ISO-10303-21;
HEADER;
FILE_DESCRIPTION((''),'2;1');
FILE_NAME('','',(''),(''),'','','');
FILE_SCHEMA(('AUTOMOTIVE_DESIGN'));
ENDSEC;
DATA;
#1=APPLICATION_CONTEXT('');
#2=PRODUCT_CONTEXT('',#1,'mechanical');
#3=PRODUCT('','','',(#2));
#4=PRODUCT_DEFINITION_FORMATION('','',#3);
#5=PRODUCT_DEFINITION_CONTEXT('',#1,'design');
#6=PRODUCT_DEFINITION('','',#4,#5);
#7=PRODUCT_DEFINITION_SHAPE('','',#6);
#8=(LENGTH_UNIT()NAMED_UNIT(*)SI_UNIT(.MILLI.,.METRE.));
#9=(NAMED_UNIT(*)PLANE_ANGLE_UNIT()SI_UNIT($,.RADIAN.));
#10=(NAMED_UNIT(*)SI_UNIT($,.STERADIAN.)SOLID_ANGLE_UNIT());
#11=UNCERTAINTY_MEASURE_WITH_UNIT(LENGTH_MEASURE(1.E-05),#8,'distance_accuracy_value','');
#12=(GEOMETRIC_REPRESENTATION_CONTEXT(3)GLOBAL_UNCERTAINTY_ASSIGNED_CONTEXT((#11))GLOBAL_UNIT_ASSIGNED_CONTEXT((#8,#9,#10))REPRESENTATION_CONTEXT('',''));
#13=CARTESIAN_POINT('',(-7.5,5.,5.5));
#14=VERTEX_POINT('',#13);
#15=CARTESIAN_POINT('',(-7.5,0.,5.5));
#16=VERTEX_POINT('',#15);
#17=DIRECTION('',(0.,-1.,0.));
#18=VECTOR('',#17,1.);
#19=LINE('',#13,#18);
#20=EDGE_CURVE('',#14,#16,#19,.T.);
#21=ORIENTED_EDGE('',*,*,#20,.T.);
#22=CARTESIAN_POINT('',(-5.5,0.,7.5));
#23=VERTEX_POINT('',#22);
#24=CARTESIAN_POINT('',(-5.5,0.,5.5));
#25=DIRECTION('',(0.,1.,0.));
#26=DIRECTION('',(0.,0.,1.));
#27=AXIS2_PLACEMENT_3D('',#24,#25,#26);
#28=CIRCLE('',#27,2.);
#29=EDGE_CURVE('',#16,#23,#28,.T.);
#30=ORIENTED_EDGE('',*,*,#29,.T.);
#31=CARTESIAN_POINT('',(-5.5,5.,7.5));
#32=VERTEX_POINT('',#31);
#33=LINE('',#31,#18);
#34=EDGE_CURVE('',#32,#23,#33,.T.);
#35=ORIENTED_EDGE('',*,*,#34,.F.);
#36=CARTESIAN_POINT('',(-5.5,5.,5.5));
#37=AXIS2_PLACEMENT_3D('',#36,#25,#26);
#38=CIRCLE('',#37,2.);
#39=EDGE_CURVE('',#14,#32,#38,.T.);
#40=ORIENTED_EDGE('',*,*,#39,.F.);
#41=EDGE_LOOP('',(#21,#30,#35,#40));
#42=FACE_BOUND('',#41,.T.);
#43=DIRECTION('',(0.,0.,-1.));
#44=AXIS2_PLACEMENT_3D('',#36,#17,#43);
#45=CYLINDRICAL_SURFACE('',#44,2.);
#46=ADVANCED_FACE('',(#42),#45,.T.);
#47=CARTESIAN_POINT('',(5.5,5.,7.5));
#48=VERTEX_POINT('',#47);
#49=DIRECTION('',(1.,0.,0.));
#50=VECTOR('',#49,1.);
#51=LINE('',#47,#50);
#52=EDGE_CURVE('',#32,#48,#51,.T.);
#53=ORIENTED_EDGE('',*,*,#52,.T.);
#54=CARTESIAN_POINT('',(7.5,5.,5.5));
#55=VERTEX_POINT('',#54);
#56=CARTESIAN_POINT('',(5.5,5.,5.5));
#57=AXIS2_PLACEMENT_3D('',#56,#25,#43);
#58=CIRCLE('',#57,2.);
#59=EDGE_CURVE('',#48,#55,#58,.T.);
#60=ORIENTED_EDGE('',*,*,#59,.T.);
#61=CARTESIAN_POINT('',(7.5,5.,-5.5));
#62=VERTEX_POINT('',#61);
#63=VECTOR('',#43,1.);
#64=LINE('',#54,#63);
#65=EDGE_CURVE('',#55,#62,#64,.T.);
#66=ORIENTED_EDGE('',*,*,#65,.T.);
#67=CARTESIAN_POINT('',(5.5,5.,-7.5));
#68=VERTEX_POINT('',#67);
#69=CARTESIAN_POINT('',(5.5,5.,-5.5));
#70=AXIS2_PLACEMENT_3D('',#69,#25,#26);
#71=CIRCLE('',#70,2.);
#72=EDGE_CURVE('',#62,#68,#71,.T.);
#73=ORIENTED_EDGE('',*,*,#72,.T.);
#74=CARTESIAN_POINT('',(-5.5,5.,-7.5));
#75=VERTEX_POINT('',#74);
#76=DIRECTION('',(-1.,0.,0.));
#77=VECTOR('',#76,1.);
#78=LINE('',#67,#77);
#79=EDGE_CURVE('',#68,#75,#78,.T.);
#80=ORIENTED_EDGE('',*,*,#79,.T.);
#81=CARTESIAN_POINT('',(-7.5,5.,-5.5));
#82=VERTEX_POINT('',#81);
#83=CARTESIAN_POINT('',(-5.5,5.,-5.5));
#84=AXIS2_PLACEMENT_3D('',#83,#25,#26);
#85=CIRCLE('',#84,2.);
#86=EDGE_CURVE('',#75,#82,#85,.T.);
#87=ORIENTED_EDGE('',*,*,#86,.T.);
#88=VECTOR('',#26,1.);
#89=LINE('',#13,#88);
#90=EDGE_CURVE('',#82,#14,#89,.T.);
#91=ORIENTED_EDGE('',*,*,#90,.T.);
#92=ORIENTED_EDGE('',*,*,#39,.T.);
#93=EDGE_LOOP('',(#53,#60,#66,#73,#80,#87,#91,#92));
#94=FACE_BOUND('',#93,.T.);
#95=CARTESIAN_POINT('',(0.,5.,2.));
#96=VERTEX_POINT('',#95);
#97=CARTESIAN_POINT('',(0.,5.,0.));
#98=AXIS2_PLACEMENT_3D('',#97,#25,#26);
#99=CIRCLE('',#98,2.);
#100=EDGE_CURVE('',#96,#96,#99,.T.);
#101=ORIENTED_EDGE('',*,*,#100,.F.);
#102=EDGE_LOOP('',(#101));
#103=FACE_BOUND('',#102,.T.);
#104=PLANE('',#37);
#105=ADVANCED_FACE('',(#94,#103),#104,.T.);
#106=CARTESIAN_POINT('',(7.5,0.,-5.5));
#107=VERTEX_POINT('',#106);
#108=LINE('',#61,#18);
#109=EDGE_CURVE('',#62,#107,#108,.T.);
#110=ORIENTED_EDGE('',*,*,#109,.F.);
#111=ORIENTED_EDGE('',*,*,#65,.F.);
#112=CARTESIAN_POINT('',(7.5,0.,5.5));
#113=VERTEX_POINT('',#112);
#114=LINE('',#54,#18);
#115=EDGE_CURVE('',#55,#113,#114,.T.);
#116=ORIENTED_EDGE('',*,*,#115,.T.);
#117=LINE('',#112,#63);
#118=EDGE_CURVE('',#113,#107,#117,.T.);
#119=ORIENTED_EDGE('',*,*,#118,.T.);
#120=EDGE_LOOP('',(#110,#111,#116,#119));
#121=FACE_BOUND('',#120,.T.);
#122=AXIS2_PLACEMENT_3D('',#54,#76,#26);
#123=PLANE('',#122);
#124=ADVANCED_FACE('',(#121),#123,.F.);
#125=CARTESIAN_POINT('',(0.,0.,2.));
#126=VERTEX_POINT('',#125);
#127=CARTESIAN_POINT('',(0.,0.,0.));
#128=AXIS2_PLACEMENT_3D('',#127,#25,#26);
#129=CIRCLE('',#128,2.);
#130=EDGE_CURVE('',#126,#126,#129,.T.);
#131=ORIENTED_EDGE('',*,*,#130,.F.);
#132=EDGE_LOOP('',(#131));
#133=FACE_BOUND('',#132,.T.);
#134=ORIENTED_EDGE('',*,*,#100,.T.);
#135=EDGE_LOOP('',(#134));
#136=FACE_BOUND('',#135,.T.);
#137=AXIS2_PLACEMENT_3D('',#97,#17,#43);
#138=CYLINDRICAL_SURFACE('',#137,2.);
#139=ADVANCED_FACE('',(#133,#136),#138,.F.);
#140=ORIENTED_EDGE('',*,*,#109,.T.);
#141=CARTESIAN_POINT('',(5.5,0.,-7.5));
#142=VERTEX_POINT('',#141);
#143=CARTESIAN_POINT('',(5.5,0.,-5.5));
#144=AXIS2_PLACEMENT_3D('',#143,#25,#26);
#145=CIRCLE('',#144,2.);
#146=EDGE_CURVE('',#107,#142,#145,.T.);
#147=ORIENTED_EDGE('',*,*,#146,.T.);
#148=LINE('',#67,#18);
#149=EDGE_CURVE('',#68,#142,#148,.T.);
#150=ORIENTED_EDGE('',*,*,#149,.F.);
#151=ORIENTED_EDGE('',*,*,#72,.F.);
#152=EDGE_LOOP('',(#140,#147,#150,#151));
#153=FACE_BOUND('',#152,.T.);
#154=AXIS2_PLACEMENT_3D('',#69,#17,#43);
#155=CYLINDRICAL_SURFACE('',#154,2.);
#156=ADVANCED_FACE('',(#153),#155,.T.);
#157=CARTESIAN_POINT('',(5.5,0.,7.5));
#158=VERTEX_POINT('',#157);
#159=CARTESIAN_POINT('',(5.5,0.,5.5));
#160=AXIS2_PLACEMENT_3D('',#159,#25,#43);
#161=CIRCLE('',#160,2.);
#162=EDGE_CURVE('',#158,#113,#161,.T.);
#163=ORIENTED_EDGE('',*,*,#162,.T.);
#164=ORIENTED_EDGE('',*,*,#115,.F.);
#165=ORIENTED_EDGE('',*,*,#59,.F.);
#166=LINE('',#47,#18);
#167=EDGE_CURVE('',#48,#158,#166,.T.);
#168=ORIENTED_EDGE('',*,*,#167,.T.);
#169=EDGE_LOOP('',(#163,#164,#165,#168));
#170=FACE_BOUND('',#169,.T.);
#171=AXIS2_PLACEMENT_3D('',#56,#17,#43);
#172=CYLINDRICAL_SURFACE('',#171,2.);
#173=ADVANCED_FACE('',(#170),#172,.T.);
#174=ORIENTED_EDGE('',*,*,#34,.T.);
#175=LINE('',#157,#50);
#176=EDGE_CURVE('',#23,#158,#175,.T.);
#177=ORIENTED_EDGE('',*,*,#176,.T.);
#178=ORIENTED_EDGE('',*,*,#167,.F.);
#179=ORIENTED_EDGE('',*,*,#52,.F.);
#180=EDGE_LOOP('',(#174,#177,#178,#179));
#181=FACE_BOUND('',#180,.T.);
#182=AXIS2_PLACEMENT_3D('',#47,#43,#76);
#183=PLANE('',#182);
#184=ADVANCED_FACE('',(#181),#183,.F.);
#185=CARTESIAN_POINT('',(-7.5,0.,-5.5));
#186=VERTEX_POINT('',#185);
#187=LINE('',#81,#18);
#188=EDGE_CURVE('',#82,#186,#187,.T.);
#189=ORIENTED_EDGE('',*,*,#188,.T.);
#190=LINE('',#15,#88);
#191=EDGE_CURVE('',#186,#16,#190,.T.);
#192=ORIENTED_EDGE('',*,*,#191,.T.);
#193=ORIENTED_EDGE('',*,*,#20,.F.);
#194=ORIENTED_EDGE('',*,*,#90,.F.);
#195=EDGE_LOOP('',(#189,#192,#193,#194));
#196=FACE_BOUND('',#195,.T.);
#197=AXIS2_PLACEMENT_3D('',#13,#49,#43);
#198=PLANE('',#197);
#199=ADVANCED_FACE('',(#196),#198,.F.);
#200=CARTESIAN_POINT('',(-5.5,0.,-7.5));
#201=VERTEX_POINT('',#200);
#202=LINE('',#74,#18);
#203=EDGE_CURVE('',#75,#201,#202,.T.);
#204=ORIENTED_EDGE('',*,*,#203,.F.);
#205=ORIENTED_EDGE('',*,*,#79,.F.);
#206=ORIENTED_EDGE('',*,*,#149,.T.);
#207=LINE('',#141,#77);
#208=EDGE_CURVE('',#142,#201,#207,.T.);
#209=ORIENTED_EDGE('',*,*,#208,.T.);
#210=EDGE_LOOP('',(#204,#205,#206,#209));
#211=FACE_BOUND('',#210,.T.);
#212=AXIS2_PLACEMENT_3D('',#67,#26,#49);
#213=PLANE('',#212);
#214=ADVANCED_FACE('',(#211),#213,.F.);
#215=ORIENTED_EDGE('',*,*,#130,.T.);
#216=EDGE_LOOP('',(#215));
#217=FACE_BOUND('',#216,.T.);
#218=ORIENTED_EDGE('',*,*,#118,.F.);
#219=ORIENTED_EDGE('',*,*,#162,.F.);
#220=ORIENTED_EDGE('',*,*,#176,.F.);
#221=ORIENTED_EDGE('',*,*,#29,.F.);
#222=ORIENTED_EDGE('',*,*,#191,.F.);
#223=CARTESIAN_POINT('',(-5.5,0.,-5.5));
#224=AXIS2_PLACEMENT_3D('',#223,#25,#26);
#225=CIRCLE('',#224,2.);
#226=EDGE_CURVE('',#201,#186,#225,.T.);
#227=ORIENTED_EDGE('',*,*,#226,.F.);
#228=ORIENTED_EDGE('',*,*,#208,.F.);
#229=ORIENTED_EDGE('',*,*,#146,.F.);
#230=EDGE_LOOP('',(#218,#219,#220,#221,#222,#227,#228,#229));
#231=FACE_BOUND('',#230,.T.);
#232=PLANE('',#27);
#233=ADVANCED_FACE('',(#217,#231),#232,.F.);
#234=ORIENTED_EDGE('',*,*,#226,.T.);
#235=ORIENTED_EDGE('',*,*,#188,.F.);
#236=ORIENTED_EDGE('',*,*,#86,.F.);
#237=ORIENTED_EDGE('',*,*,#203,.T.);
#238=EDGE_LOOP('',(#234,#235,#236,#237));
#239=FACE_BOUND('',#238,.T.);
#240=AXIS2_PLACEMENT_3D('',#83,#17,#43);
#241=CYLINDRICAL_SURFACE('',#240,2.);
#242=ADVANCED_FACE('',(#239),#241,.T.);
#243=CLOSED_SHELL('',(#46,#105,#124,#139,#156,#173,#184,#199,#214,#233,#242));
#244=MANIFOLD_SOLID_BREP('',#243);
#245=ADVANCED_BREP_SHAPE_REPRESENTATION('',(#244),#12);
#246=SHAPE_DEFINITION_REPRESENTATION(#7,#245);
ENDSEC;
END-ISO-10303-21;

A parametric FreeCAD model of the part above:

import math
import FreeCAD as App
import Part
import Sketcher

doc = App.newDocument("Part")
body = doc.addObject("PartDesign::Body", "Body")

# Sketch on XZ plane
sketch1 = body.newObject("Sketcher::SketchObject", "Sketch")
sketch1.AttachmentSupport = (doc.getObject("XZ_Plane"), [""])
sketch1.MapMode = "FlatFace"
sketch1.addGeometry([
    Part.LineSegment(App.Vector(-5.5, 7.5, 0), App.Vector(5.5, 7.5, 0)),  # 0
    Part.ArcOfCircle(Part.Circle(App.Vector(5.5, 5.5, 0), App.Vector(0, 0, 1), 2), math.radians(0), math.radians(90)),  # 1
    Part.LineSegment(App.Vector(7.5, 5.5, 0), App.Vector(7.5, -5.5, 0)),  # 2
    Part.ArcOfCircle(Part.Circle(App.Vector(5.5, -5.5, 0), App.Vector(0, 0, 1), 2), math.radians(-90), math.radians(0)),  # 3
    Part.LineSegment(App.Vector(5.5, -7.5, 0), App.Vector(-5.5, -7.5, 0)),  # 4
    Part.ArcOfCircle(Part.Circle(App.Vector(-5.5, -5.5, 0), App.Vector(0, 0, 1), 2), math.radians(-180), math.radians(-90)),  # 5
    Part.LineSegment(App.Vector(-7.5, -5.5, 0), App.Vector(-7.5, 5.5, 0)),  # 6
    Part.ArcOfCircle(Part.Circle(App.Vector(-5.5, 5.5, 0), App.Vector(0, 0, 1), 2), math.radians(90), math.radians(180)),  # 7
    Part.Circle(App.Vector(0, 0, 0), App.Vector(0, 0, 1), 2),  # 8
], False)
sketch1.addConstraint([
    Sketcher.Constraint("Tangent", 0, 2, 1, 2),
    Sketcher.Constraint("Tangent", 1, 1, 2, 1),
    Sketcher.Constraint("Tangent", 2, 2, 3, 2),
    Sketcher.Constraint("Tangent", 3, 1, 4, 1),
    Sketcher.Constraint("Tangent", 4, 2, 5, 2),
    Sketcher.Constraint("Tangent", 5, 1, 6, 1),
    Sketcher.Constraint("Tangent", 6, 2, 7, 2),
    Sketcher.Constraint("Tangent", 7, 1, 0, 1),
    Sketcher.Constraint("Horizontal", 0),
    Sketcher.Constraint("Vertical", 2),
    Sketcher.Constraint("Horizontal", 4),
    Sketcher.Constraint("Vertical", 6),
    Sketcher.Constraint("Coincident", 8, 3, -1, 1),
    Sketcher.Constraint("Equal", 1, 3),
    Sketcher.Constraint("Equal", 3, 5),
    Sketcher.Constraint("Equal", 5, 7),
    Sketcher.Constraint("Equal", 7, 8),
    Sketcher.Constraint("Symmetric", 1, 3, 5, 3, -1, 1),
    Sketcher.Constraint("Equal", 4, 2),
    Sketcher.Constraint("Diameter", 8, 4.0),
    Sketcher.Constraint("DistanceX", 0, 1, 0, 2, 11.0),
])
pad1 = body.newObject("PartDesign::Pad", "Pad")
pad1.Profile = sketch1
pad1.Length = 5
pad1.Reversed = True

doc.recompute()
